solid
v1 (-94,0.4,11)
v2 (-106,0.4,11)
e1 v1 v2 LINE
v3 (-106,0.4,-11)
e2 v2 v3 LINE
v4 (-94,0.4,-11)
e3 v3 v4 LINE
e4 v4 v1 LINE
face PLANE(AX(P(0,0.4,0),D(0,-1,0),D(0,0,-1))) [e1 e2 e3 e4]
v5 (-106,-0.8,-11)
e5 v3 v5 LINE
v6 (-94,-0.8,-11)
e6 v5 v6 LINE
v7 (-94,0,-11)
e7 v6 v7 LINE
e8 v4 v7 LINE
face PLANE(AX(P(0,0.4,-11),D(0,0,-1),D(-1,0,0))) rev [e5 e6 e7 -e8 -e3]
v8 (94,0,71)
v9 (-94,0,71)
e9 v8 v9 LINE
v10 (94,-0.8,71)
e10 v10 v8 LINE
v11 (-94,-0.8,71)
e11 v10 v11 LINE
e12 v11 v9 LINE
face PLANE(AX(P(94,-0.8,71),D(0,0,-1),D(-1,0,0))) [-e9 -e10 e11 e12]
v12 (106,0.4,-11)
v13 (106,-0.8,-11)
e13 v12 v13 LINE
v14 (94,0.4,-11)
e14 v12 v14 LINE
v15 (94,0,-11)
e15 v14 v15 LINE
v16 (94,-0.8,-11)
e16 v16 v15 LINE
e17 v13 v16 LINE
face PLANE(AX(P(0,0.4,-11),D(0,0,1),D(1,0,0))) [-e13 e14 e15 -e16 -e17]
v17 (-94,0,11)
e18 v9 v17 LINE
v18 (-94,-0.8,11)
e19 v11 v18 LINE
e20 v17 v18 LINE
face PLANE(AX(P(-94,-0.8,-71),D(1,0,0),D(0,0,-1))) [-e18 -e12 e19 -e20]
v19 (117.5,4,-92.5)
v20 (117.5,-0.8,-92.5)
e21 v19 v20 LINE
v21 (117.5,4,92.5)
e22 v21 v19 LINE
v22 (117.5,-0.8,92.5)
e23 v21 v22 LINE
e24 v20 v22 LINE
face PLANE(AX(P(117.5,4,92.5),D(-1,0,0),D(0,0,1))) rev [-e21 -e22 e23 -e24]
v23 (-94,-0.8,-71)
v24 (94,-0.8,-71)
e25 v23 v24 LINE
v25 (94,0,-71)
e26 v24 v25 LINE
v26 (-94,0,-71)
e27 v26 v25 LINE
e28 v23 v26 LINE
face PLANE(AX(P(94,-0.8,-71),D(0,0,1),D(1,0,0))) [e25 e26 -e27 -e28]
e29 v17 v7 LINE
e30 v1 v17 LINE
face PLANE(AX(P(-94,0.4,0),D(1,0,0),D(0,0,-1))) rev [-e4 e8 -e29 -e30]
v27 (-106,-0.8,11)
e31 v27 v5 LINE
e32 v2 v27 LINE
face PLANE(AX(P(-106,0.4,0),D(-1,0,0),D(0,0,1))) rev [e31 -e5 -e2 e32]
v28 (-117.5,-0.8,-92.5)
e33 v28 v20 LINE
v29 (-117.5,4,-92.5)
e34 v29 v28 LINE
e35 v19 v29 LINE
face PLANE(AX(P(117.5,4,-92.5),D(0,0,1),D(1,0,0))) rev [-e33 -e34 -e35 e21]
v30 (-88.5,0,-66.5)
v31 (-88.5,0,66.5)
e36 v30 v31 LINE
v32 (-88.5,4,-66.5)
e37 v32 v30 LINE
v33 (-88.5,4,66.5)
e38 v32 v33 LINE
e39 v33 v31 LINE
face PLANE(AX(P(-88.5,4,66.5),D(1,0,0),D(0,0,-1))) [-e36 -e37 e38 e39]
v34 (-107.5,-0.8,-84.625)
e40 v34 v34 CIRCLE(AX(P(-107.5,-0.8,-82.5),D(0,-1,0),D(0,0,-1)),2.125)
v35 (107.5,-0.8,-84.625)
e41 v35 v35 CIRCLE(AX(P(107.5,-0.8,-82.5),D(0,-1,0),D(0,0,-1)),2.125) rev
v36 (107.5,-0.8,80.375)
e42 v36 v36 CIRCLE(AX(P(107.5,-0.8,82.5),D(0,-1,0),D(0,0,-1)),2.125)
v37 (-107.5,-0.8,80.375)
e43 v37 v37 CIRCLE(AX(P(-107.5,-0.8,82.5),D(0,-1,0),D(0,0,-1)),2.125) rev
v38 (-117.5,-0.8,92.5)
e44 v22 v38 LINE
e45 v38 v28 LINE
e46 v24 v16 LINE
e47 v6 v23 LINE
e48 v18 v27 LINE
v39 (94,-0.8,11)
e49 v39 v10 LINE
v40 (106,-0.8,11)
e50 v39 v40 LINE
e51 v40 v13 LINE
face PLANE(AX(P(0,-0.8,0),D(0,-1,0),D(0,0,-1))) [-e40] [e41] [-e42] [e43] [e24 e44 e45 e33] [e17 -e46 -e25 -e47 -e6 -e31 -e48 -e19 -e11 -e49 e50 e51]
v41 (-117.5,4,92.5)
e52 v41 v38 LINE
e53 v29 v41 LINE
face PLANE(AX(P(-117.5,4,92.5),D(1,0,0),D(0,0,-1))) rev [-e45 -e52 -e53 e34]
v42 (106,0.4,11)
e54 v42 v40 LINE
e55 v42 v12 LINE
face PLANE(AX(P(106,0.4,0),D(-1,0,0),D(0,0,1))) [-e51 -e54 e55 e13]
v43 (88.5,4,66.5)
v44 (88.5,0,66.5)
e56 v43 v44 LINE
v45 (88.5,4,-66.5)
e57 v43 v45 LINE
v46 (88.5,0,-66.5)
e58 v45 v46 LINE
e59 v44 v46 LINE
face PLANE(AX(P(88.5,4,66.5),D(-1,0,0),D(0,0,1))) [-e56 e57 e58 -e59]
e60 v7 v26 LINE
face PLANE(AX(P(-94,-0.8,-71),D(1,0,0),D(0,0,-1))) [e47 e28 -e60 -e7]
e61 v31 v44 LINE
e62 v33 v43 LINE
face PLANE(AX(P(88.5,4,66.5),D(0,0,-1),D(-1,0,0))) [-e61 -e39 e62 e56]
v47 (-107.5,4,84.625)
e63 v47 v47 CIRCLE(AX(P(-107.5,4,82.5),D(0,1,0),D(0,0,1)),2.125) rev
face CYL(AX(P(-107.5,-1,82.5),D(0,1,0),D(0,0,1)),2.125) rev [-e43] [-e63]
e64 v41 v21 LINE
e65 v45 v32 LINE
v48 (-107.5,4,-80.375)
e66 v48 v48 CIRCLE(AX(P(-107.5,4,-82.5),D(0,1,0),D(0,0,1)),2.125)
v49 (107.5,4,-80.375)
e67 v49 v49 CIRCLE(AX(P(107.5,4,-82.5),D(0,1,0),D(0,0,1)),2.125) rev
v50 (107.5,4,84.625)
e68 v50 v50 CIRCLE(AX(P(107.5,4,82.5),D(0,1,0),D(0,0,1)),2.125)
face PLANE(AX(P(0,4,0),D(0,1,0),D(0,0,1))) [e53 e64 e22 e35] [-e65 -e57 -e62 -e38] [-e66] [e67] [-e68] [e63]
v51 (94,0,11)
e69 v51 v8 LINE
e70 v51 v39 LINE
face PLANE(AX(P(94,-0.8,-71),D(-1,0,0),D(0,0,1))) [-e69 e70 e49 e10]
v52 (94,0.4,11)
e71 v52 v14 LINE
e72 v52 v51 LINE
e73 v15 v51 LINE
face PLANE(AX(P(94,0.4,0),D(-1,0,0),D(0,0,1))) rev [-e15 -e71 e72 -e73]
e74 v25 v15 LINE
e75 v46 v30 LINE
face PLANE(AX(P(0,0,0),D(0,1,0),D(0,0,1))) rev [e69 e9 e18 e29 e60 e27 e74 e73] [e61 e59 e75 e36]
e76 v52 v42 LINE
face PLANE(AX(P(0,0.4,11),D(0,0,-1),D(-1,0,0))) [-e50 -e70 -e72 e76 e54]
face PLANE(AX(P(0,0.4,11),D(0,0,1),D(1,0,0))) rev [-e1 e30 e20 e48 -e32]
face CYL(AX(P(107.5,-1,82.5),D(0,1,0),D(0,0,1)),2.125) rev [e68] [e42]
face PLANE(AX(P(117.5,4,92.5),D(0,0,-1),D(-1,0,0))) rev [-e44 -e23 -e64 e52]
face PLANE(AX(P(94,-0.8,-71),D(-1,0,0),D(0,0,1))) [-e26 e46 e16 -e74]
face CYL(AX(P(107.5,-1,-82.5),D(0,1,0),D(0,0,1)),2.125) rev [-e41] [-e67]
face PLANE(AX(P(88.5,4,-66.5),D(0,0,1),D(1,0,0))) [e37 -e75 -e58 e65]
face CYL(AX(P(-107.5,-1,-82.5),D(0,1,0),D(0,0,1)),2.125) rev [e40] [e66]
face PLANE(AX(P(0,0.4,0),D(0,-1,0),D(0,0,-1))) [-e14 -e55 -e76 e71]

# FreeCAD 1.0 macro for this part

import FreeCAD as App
import Part
import Sketcher
from FreeCAD import Vector

doc = App.newDocument("Part")
body = doc.addObject("PartDesign::Body", "Body")

sketch1 = doc.addObject("Sketcher::SketchObject", "Sketch")
body.addObject(sketch1)
sketch1.AttachmentSupport = (doc.XZ_Plane, [""])
sketch1.MapMode = "FlatFace"
sketch1.addGeometry([
    Part.LineSegment(Vector(-118, -92, 0), Vector(-118, 92, 0)),
    Part.LineSegment(Vector(-118, 92, 0), Vector(118, 92, 0)),
    Part.LineSegment(Vector(118, 92, 0), Vector(118, -92, 0)),
    Part.LineSegment(Vector(118, -92, 0), Vector(-118, -92, 0)),
    Part.LineSegment(Vector(88, 66, 0), Vector(-88, 66, 0)),
    Part.LineSegment(Vector(-88, 66, 0), Vector(-88, -66, 0)),
    Part.LineSegment(Vector(-88, -66, 0), Vector(88, -66, 0)),
    Part.LineSegment(Vector(88, -66, 0), Vector(88, 66, 0)),
], False)
sketch1.addConstraint([
    Sketcher.Constraint("Coincident", 0, 2, 1, 1),
    Sketcher.Constraint("Coincident", 1, 2, 2, 1),
    Sketcher.Constraint("Coincident", 2, 2, 3, 1),
    Sketcher.Constraint("Coincident", 3, 2, 0, 1),
    Sketcher.Constraint("Coincident", 4, 2, 5, 1),
    Sketcher.Constraint("Coincident", 5, 2, 6, 1),
    Sketcher.Constraint("Coincident", 6, 2, 7, 1),
    Sketcher.Constraint("Coincident", 7, 2, 4, 1),
    Sketcher.Constraint("Vertical", 0),
    Sketcher.Constraint("Horizontal", 1),
    Sketcher.Constraint("Vertical", 2),
    Sketcher.Constraint("Horizontal", 3),
    Sketcher.Constraint("Horizontal", 4),
    Sketcher.Constraint("Vertical", 5),
    Sketcher.Constraint("Horizontal", 6),
    Sketcher.Constraint("Vertical", 7),
    Sketcher.Constraint("Symmetric", 0, 2, 2, 2, -1, 1),
    Sketcher.Constraint("Symmetric", 4, 2, 6, 2, -1, 1),
    Sketcher.Constraint("DistanceX", 1, 1, 1, 2, 235.0),
    Sketcher.Constraint("DistanceX", 4, 2, 4, 1, 177.0),
    Sketcher.Constraint("DistanceY", 0, 1, 0, 2, 185.0),
    Sketcher.Constraint("DistanceY", 5, 2, 5, 1, 133.0),
])
pad1 = doc.addObject("PartDesign::Pad", "Pad")
body.addObject(pad1)
pad1.Profile = sketch1
pad1.Length = 4
pad1.Reversed = True

sketch2 = doc.addObject("Sketcher::SketchObject", "Sketch001")
body.addObject(sketch2)
sketch2.AttachmentSupport = (doc.XZ_Plane, [""])
sketch2.MapMode = "FlatFace"
sketch2.addGeometry([
    Part.LineSegment(Vector(-118, 92, 0), Vector(-118, -92, 0)),
    Part.LineSegment(Vector(-118, -92, 0), Vector(118, -92, 0)),
    Part.LineSegment(Vector(118, -92, 0), Vector(118, 92, 0)),
    Part.LineSegment(Vector(118, 92, 0), Vector(-118, 92, 0)),
    Part.LineSegment(Vector(94, -71, 0), Vector(-94, -71, 0)),
    Part.LineSegment(Vector(-94, -71, 0), Vector(-94, 71, 0)),
    Part.LineSegment(Vector(-94, 71, 0), Vector(94, 71, 0)),
    Part.LineSegment(Vector(94, 71, 0), Vector(94, -71, 0)),
], False)
sketch2.addConstraint([
    Sketcher.Constraint("Coincident", 0, 2, 1, 1),
    Sketcher.Constraint("Coincident", 1, 2, 2, 1),
    Sketcher.Constraint("Coincident", 2, 2, 3, 1),
    Sketcher.Constraint("Coincident", 3, 2, 0, 1),
    Sketcher.Constraint("Coincident", 4, 2, 5, 1),
    Sketcher.Constraint("Coincident", 5, 2, 6, 1),
    Sketcher.Constraint("Coincident", 6, 2, 7, 1),
    Sketcher.Constraint("Coincident", 7, 2, 4, 1),
    Sketcher.Constraint("Vertical", 0),
    Sketcher.Constraint("Horizontal", 1),
    Sketcher.Constraint("Vertical", 2),
    Sketcher.Constraint("Horizontal", 3),
    Sketcher.Constraint("Horizontal", 4),
    Sketcher.Constraint("Vertical", 5),
    Sketcher.Constraint("Horizontal", 6),
    Sketcher.Constraint("Vertical", 7),
    Sketcher.Constraint("Symmetric", 0, 2, 2, 2, -1, 1),
    Sketcher.Constraint("Symmetric", 4, 2, 6, 2, -1, 1),
    Sketcher.Constraint("DistanceX", 1, 1, 1, 2, 235.0),
    Sketcher.Constraint("DistanceX", 4, 2, 4, 1, 188.0),
    Sketcher.Constraint("DistanceY", 0, 2, 0, 1, 185.0),
    Sketcher.Constraint("DistanceY", 5, 1, 5, 2, 142.0),
])
pad2 = doc.addObject("PartDesign::Pad", "Pad001")
body.addObject(pad2)
pad2.Profile = sketch2
pad2.Length = 0.8

sketch3 = doc.addObject("Sketcher::SketchObject", "Sketch002")
body.addObject(sketch3)
sketch3.AttachmentSupport = (doc.XZ_Plane, [""])
sketch3.MapMode = "FlatFace"
sketch3.AttachmentOffset = App.Placement(Vector(0, 0, -4), App.Rotation())
sketch3.addGeometry([
    Part.Circle(Vector(-107.5, -82.5, 0), Vector(0, 0, 1), 2.1),
    Part.Circle(Vector(-107.5, 82.5, 0), Vector(0, 0, 1), 2.1),
    Part.Circle(Vector(107.5, -82.5, 0), Vector(0, 0, 1), 2.1),
    Part.Circle(Vector(107.5, 82.5, 0), Vector(0, 0, 1), 2.1),
], False)
sketch3.addConstraint([
    Sketcher.Constraint("Equal", 0, 1),
    Sketcher.Constraint("Equal", 1, 2),
    Sketcher.Constraint("Equal", 2, 3),
    Sketcher.Constraint("Symmetric", 1, 3, 2, 3, -1, 1),
    Sketcher.Constraint("Symmetric", 0, 3, 3, 3, -1, 1),
    Sketcher.Constraint("Symmetric", 0, 3, 2, 3, -2),
    Sketcher.Constraint("Diameter", 0, 4.25),
    Sketcher.Constraint("DistanceY", 0, 3, 1, 3, 165.0),
    Sketcher.Constraint("DistanceX", 0, 3, 2, 3, 215.0),
])
pocket1 = doc.addObject("PartDesign::Pocket", "Pocket")
body.addObject(pocket1)
pocket1.Profile = sketch3
pocket1.Length = 5
pocket1.Reversed = True

sketch4 = doc.addObject("Sketcher::SketchObject", "Sketch003")
body.addObject(sketch4)
sketch4.AttachmentSupport = (doc.XZ_Plane, [""])
sketch4.MapMode = "FlatFace"
sketch4.AttachmentOffset = App.Placement(Vector(0, 0, 0.8), App.Rotation())
sketch4.addGeometry([
    Part.LineSegment(Vector(-106, 11, 0), Vector(-106, -11, 0)),
    Part.LineSegment(Vector(-106, -11, 0), Vector(-94, -11, 0)),
    Part.LineSegment(Vector(-94, -11, 0), Vector(-94, 11, 0)),
    Part.LineSegment(Vector(-94, 11, 0), Vector(-106, 11, 0)),
    Part.LineSegment(Vector(94, 11, 0), Vector(94, -11, 0)),
    Part.LineSegment(Vector(94, -11, 0), Vector(106, -11, 0)),
    Part.LineSegment(Vector(106, -11, 0), Vector(106, 11, 0)),
    Part.LineSegment(Vector(106, 11, 0), Vector(94, 11, 0)),
], False)
sketch4.addConstraint([
    Sketcher.Constraint("Coincident", 0, 2, 1, 1),
    Sketcher.Constraint("Coincident", 1, 2, 2, 1),
    Sketcher.Constraint("Coincident", 2, 2, 3, 1),
    Sketcher.Constraint("Coincident", 3, 2, 0, 1),
    Sketcher.Constraint("Coincident", 4, 2, 5, 1),
    Sketcher.Constraint("Coincident", 5, 2, 6, 1),
    Sketcher.Constraint("Coincident", 6, 2, 7, 1),
    Sketcher.Constraint("Coincident", 7, 2, 4, 1),
    Sketcher.Constraint("Vertical", 0),
    Sketcher.Constraint("Horizontal", 1),
    Sketcher.Constraint("Vertical", 2),
    Sketcher.Constraint("Horizontal", 3),
    Sketcher.Constraint("Vertical", 4),
    Sketcher.Constraint("Horizontal", 5),
    Sketcher.Constraint("Vertical", 6),
    Sketcher.Constraint("Horizontal", 7),
    Sketcher.Constraint("Symmetric", 2, 2, 4, 2, -1, 1),
    Sketcher.Constraint("Symmetric", 0, 2, 6, 2, -1, 1),
    Sketcher.Constraint("Horizontal", 1, 2, 4, 2),
    Sketcher.Constraint("DistanceX", 1, 1, 1, 2, 12.0),
    Sketcher.Constraint("DistanceY", 0, 2, 0, 1, 22.0),
    Sketcher.Constraint("DistanceX", 0, 2, -1, 1, 106.0),
])
pocket2 = doc.addObject("PartDesign::Pocket", "Pocket001")
body.addObject(pocket2)
pocket2.Profile = sketch4
pocket2.Length = 1.2

doc.recompute()
